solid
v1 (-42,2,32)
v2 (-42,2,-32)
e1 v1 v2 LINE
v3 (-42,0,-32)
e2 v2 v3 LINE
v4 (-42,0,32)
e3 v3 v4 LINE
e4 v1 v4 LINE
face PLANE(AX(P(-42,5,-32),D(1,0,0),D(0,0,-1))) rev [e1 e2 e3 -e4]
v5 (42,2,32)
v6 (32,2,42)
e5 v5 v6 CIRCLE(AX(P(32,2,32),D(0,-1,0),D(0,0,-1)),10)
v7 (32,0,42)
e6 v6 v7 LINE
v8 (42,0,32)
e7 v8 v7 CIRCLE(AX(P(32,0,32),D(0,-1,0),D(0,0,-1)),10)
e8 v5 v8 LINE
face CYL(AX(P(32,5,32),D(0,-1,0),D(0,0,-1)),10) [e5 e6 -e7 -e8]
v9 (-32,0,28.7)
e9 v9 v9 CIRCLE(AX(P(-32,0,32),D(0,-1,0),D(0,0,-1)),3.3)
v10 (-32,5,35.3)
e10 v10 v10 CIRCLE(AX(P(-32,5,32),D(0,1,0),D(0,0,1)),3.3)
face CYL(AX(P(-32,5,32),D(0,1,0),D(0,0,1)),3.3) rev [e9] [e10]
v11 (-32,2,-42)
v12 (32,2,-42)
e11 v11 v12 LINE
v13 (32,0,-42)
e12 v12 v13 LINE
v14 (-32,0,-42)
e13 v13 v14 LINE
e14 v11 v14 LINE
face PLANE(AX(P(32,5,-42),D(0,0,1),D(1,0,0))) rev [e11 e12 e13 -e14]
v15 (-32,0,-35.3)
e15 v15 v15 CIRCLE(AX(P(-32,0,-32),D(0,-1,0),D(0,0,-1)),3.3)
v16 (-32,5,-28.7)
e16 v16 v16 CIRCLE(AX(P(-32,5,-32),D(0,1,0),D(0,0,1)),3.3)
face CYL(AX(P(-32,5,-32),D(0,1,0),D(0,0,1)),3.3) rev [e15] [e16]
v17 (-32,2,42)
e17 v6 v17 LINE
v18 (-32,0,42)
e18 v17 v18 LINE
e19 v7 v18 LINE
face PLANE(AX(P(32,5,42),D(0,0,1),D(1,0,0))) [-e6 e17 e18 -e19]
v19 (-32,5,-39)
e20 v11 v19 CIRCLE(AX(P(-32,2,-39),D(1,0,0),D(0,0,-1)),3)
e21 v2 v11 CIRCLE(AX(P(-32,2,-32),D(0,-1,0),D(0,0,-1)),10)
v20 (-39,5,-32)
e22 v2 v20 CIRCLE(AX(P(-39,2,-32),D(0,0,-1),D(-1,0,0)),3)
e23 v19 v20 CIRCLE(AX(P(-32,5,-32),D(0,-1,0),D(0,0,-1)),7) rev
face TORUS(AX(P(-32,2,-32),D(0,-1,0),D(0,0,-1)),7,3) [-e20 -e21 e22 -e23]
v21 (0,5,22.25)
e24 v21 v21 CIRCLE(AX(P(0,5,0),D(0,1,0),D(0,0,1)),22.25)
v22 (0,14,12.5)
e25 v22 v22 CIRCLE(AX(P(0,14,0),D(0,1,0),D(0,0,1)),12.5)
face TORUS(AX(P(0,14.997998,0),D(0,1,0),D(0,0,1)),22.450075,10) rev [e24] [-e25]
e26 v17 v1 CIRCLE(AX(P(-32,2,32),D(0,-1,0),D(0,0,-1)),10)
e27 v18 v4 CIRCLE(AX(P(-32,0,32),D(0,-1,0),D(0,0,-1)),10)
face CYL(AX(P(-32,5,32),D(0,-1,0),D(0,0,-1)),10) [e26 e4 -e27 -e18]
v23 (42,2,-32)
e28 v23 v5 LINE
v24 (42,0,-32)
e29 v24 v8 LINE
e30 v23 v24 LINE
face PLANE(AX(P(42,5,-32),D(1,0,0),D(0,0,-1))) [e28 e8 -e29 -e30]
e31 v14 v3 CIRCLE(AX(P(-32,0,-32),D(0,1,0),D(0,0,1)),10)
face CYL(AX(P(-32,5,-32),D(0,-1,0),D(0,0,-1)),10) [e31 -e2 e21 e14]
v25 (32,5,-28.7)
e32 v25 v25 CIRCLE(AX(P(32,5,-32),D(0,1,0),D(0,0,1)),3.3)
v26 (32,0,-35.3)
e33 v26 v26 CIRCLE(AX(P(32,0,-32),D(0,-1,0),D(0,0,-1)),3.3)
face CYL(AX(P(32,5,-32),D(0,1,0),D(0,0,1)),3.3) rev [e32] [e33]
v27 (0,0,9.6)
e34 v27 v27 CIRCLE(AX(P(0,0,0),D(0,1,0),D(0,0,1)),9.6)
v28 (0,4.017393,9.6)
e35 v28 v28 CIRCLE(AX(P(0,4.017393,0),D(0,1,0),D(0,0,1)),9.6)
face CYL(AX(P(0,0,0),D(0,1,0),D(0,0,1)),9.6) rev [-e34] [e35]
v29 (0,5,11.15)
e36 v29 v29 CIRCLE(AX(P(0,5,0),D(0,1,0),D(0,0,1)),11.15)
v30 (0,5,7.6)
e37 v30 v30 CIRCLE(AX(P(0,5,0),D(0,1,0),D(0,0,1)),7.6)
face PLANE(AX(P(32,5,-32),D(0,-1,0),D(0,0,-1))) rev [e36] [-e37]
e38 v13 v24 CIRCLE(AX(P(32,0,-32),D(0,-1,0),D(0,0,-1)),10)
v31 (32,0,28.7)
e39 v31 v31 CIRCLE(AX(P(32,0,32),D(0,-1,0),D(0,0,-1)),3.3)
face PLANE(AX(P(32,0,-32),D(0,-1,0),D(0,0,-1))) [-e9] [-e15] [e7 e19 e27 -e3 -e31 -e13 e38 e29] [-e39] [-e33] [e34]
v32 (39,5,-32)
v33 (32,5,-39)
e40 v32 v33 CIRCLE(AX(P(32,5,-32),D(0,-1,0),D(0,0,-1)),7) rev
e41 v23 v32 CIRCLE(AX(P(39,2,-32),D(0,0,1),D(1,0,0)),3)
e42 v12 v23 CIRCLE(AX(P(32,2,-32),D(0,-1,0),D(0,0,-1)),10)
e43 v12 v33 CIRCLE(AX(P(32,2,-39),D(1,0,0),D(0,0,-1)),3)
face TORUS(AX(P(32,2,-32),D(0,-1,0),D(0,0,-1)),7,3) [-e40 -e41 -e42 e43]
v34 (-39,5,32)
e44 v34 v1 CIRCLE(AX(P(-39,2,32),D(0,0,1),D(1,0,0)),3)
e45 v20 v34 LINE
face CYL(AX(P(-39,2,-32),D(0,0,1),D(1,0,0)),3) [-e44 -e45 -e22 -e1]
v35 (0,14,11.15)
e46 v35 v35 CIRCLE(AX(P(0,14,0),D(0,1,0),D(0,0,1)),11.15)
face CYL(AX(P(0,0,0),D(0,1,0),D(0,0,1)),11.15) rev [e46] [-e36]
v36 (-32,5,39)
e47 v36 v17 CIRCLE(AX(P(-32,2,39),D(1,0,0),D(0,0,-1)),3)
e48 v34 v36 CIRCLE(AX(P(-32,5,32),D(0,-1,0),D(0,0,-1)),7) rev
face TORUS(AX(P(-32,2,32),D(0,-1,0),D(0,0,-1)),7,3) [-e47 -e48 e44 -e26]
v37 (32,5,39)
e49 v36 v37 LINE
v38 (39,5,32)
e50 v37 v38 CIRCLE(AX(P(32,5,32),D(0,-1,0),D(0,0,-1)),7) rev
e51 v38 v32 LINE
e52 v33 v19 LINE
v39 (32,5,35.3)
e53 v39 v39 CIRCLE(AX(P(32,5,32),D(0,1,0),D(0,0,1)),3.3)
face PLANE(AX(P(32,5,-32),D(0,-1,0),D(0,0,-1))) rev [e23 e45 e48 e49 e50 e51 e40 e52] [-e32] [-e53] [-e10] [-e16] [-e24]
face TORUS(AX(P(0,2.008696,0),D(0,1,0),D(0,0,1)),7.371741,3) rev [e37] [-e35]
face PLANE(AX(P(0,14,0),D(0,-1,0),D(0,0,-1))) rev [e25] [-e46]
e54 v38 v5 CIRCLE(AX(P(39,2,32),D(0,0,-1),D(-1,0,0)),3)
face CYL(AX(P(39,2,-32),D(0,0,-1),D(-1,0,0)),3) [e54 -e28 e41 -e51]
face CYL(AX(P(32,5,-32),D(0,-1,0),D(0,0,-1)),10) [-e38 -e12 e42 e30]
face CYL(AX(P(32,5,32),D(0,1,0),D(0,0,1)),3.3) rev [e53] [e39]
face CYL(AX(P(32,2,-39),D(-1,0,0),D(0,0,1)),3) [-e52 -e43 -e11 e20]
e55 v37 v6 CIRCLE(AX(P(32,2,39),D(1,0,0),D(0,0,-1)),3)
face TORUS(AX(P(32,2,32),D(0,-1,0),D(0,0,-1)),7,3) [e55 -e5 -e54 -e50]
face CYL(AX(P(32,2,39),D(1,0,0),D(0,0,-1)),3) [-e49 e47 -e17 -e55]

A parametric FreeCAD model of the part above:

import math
import FreeCAD as App
import Part
import Sketcher

V = App.Vector


def edges_at(feature, points):
    """Names of the edges that pass closest to the given points."""
    edges = feature.Shape.Edges
    near = lambda p: min(range(len(edges)), key=lambda i: edges[i].distToShape(Part.Vertex(*p))[0])
    return sorted({f"Edge{near(p) + 1}" for p in points})

doc = App.newDocument("Part")
body = doc.addObject("PartDesign::Body", "Body")

# Sketch on XZ plane
sketch1 = body.newObject("Sketcher::SketchObject", "Sketch")
sketch1.AttachmentSupport = (doc.getObject("XZ_Plane"), [""])
sketch1.MapMode = "FlatFace"
sketch1.addGeometry([
    Part.LineSegment(V(32, -42, 0), V(-32, -42, 0)),  # 0
    Part.ArcOfCircle(Part.Circle(V(-32, -32, 0), V(0, 0, 1), 10), math.radians(180), math.radians(270)),  # 1
    Part.LineSegment(V(-42, -32, 0), V(-42, 32, 0)),  # 2
    Part.ArcOfCircle(Part.Circle(V(-32, 32, 0), V(0, 0, 1), 10), math.radians(90), math.radians(180)),  # 3
    Part.LineSegment(V(-32, 42, 0), V(32, 42, 0)),  # 4
    Part.ArcOfCircle(Part.Circle(V(32, 32, 0), V(0, 0, 1), 10), math.radians(0), math.radians(90)),  # 5
    Part.LineSegment(V(42, 32, 0), V(42, -32, 0)),  # 6
    Part.ArcOfCircle(Part.Circle(V(32, -32, 0), V(0, 0, 1), 10), math.radians(-90), math.radians(0)),  # 7
], False)
sketch1.addConstraint([
    Sketcher.Constraint("Tangent", 0, 2, 1, 2),
    Sketcher.Constraint("Tangent", 1, 1, 2, 1),
    Sketcher.Constraint("Tangent", 2, 2, 3, 2),
    Sketcher.Constraint("Tangent", 3, 1, 4, 1),
    Sketcher.Constraint("Tangent", 4, 2, 5, 2),
    Sketcher.Constraint("Tangent", 5, 1, 6, 1),
    Sketcher.Constraint("Tangent", 6, 2, 7, 2),
    Sketcher.Constraint("Tangent", 7, 1, 0, 1),
    Sketcher.Constraint("Horizontal", 0),
    Sketcher.Constraint("Vertical", 2),
    Sketcher.Constraint("Horizontal", 4),
    Sketcher.Constraint("Vertical", 6),
    Sketcher.Constraint("Equal", 1, 3),
    Sketcher.Constraint("Equal", 3, 5),
    Sketcher.Constraint("Equal", 5, 7),
    Sketcher.Constraint("Symmetric", 1, 3, 5, 3, -1, 1),
    Sketcher.Constraint("Equal", 4, 2),
    Sketcher.Constraint("Radius", 1, 10.0),
    Sketcher.Constraint("DistanceX", 0, 2, 0, 1, 64.0),
])
pad1 = body.newObject("PartDesign::Pad", "Pad")
pad1.Profile = sketch1
pad1.Length = 5
pad1.Reversed = True

# Sketch on XY plane
sketch2 = body.newObject("Sketcher::SketchObject", "Sketch001")
sketch2.AttachmentSupport = (doc.getObject("XY_Plane"), [""])
sketch2.MapMode = "FlatFace"
sketch2.addGeometry([
    Part.LineSegment(V(-22.2, 5, 0), V(-11.2, 5, 0)),
    Part.LineSegment(V(-11.2, 5, 0), V(-11.2, 14, 0)),
    Part.LineSegment(V(-11.2, 14, 0), V(-12.5, 14, 0)),
    Part.ArcOfCircle(Part.Circle(V(-22.5, 15, 0), V(0, 0, 1), 10), math.radians(-89), math.radians(-6)),
], False)
sketch2.addConstraint([
    Sketcher.Constraint("Coincident", 0, 2, 1, 1),
    Sketcher.Constraint("Coincident", 1, 2, 2, 1),
    Sketcher.Constraint("Coincident", 2, 2, 3, 2),
    Sketcher.Constraint("Coincident", 3, 1, 0, 1),
    Sketcher.Constraint("Horizontal", 0),
    Sketcher.Constraint("Vertical", 1),
    Sketcher.Constraint("Horizontal", 2),
    Sketcher.Constraint("Radius", 3, 10.0),
    Sketcher.Constraint("DistanceY", 1, 1, 1, 2, 9.0),
    Sketcher.Constraint("DistanceX", 0, 1, 0, 2, 11.1),
    Sketcher.Constraint("DistanceY", -1, 1, 0, 2, 5.0),
    Sketcher.Constraint("DistanceX", 2, 2, 2, 1, 1.35),
    Sketcher.Constraint("DistanceX", 2, 2, -1, 1, 12.5),
])
revolution = body.newObject("PartDesign::Revolution", "Revolution")
revolution.Profile = sketch2
revolution.ReferenceAxis = (sketch2, ["V_Axis"])
revolution.Angle = 360

# Sketch on XY plane
sketch3 = body.newObject("Sketcher::SketchObject", "Sketch002")
sketch3.AttachmentSupport = (doc.getObject("XY_Plane"), [""])
sketch3.MapMode = "FlatFace"
sketch3.addGeometry([
    Part.LineSegment(V(0, 0, 0), V(0, 5, 0)),  # 0
    Part.LineSegment(V(0, 5, 0), V(-7.6, 5, 0)),  # 1
    Part.ArcOfCircle(Part.Circle(V(-7.4, 2, 0), V(0, 0, 1), 3), math.radians(94), math.radians(138)),  # 2
    Part.LineSegment(V(-9.6, 4, 0), V(-9.6, 0, 0)),  # 3
    Part.LineSegment(V(-9.6, 0, 0), V(0, 0, 0)),  # 4
], False)
sketch3.addConstraint([
    Sketcher.Constraint("Coincident", 0, 2, 1, 1),
    Sketcher.Constraint("Coincident", 1, 2, 2, 1),
    Sketcher.Constraint("Coincident", 2, 2, 3, 1),
    Sketcher.Constraint("Coincident", 3, 2, 4, 1),
    Sketcher.Constraint("Coincident", 4, 2, 0, 1),
    Sketcher.Constraint("Vertical", 0),
    Sketcher.Constraint("Horizontal", 1),
    Sketcher.Constraint("Vertical", 3),
    Sketcher.Constraint("Horizontal", 4),
    Sketcher.Constraint("Coincident", 4, 2, -1, 1),
    Sketcher.Constraint("Radius", 2, 3.0),
    Sketcher.Constraint("DistanceY", 0, 1, 0, 2, 5.0),
    Sketcher.Constraint("DistanceX", 1, 2, 1, 1, 7.6),
    Sketcher.Constraint("DistanceX", 4, 1, 4, 2, 9.6),
    Sketcher.Constraint("DistanceY", 3, 2, 3, 1, 4.017393),
])
groove = body.newObject("PartDesign::Groove", "Groove")
groove.Profile = sketch3
groove.ReferenceAxis = (sketch3, ["V_Axis"])
groove.Angle = 360
doc.recompute()

fillet = body.newObject("PartDesign::Fillet", "Fillet")
fillet.Base = (groove, edges_at(groove, [
    (39.071, 5, 39.071),
    (0, 5, 42),
    (-39.071, 5, 39.071),
    (-42, 5, 0),
    (-39.071, 5, -39.071),
    (0, 5, -42),
    (39.071, 5, -39.071),
    (42, 5, 0),
]))
fillet.Radius = 3

# Sketch on XZ plane
sketch4 = body.newObject("Sketcher::SketchObject", "Sketch003")
sketch4.AttachmentSupport = (doc.getObject("XZ_Plane"), [""])
sketch4.MapMode = "FlatFace"
sketch4.AttachmentOffset = App.Placement(V(0, 0, -5), App.Rotation())
sketch4.addGeometry([
    Part.Circle(V(-32, -32, 0), V(0, 0, 1), 3.3),
    Part.Circle(V(-32, 32, 0), V(0, 0, 1), 3.3),
    Part.Circle(V(32, 32, 0), V(0, 0, 1), 3.3),
    Part.Circle(V(32, -32, 0), V(0, 0, 1), 3.3),
], False)
sketch4.addConstraint([
    Sketcher.Constraint("Equal", 0, 1),
    Sketcher.Constraint("Equal", 1, 2),
    Sketcher.Constraint("Equal", 2, 3),
    Sketcher.Constraint("Symmetric", 0, 3, 2, 3, -1, 1),
    Sketcher.Constraint("Symmetric", 1, 3, 3, 3, -1, 1),
    Sketcher.Constraint("Symmetric", 1, 3, 2, 3, -2),
    Sketcher.Constraint("Diameter", 0, 6.6),
    Sketcher.Constraint("DistanceX", 0, 3, -1, 1, 32.0),
    Sketcher.Constraint("DistanceY", 0, 3, -1, 1, 32.0),
])
doc.recompute()
hole = body.newObject("PartDesign::Hole", "Hole")
hole.Profile = sketch4
hole.ThreadType = "None"
hole.Diameter = 6.6
hole.DepthType = "Dimension"
hole.Depth = 8
hole.DrillPoint = "Angled"
hole.DrillPointAngle = 118
hole.Reversed = True

doc.recompute()
